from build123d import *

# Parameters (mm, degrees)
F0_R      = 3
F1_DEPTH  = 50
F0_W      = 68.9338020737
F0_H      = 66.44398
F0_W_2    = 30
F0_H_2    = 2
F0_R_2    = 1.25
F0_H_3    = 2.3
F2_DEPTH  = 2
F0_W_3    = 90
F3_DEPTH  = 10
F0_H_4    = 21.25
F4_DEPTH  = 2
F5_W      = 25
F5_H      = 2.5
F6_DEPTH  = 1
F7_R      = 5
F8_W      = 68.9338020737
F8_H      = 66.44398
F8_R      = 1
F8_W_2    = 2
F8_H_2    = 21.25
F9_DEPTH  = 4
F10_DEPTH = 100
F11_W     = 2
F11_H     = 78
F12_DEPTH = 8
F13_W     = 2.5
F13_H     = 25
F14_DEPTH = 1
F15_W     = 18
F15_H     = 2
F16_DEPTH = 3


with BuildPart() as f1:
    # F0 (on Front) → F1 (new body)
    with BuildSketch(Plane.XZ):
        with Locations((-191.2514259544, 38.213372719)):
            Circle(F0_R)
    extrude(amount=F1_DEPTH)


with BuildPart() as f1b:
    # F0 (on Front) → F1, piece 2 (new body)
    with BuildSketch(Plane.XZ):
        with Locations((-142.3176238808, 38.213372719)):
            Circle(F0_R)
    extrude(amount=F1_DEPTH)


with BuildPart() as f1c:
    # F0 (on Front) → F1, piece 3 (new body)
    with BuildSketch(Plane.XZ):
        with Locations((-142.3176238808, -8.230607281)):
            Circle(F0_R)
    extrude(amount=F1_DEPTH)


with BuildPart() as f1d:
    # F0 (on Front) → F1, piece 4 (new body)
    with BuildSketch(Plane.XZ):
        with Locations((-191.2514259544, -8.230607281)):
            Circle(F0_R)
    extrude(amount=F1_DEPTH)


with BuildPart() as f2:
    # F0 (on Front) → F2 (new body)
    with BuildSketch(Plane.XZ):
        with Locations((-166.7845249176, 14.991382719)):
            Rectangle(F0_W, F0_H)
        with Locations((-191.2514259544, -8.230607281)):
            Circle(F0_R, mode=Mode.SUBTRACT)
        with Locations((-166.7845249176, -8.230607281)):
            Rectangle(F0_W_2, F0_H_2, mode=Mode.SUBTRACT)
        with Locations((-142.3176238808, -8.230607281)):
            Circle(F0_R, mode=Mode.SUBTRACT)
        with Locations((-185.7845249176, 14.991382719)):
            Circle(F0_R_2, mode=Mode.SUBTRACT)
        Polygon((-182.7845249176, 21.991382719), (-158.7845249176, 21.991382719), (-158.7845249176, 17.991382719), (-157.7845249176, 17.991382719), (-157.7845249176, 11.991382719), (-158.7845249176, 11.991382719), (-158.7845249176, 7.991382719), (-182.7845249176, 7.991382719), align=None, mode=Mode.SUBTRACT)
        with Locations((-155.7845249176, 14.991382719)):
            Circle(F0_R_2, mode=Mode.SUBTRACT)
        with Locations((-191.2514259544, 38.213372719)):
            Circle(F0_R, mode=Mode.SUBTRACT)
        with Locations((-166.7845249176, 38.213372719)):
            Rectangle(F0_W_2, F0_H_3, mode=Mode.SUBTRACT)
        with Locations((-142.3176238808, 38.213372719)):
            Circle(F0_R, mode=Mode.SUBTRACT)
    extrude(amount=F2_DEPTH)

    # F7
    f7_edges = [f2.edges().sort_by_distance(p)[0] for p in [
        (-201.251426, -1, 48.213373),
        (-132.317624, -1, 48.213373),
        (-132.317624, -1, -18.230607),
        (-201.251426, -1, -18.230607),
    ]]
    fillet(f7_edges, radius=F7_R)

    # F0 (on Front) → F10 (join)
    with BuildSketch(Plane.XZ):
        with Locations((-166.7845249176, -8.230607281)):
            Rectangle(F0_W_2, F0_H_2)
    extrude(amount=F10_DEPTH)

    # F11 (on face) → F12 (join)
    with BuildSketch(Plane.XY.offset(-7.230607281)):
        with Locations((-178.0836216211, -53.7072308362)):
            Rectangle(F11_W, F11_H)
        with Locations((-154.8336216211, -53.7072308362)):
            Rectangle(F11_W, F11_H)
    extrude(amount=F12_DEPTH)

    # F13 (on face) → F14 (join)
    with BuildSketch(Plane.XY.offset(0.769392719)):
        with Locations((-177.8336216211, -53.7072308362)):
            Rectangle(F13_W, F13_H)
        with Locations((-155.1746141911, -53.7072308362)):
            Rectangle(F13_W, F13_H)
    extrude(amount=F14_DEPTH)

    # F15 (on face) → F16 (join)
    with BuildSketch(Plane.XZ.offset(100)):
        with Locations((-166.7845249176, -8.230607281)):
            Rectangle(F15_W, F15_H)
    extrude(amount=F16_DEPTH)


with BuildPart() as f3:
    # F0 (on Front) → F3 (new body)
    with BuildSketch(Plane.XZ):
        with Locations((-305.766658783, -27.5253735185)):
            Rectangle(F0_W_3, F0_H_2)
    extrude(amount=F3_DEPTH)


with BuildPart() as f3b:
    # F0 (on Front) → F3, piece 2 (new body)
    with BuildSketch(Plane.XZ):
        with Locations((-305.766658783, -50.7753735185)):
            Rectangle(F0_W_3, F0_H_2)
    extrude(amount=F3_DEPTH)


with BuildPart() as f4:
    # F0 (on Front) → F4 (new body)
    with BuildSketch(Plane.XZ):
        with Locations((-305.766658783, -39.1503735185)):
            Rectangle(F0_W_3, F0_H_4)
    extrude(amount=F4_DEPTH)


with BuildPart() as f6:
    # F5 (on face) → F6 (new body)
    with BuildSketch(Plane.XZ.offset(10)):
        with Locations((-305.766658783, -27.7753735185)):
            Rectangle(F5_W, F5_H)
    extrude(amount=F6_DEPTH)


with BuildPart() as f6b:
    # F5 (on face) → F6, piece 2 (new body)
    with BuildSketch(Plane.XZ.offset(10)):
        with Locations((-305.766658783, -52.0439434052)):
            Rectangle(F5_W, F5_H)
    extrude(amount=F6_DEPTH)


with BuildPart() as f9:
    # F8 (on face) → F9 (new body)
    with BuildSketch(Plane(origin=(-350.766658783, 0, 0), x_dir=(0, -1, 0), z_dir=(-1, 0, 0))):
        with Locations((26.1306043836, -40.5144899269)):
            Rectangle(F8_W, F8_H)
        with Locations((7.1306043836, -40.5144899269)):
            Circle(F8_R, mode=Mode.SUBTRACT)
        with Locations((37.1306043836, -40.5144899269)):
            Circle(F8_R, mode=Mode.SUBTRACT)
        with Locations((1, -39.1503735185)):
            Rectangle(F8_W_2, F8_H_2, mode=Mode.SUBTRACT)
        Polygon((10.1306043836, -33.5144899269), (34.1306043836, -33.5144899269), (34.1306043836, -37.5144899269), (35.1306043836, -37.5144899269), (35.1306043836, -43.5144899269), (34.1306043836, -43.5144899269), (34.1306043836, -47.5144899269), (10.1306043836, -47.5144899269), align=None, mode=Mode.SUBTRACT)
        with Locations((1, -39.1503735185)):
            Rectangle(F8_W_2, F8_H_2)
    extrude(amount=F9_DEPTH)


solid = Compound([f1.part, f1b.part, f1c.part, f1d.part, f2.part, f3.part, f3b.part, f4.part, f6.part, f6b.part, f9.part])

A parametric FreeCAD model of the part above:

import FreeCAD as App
import Part
import Sketcher

V = App.Vector
Q = App.Units.Quantity


def edges_at(feature, points):
    """Names of the edges that pass closest to the given points."""
    edges = feature.Shape.Edges
    near = lambda p: min(range(len(edges)), key=lambda i: edges[i].distToShape(Part.Vertex(*p))[0])
    return sorted({f"Edge{near(p) + 1}" for p in points})

doc = App.newDocument("Part")
params = doc.addObject("Spreadsheet::Sheet", "Params")
for row, (alias, value) in enumerate([
    ("sketch1_diameter", "6 mm"),
    ("pad1_length", "50 mm"),
    ("sketch2_diameter", "6 mm"),
    ("pad2_length", "50 mm"),
    ("sketch3_diameter", "6 mm"),
    ("pad3_length", "50 mm"),
    ("sketch4_diameter", "6 mm"),
    ("pad4_length", "50 mm"),
    ("sketch5_diameter", "6 mm"),
    ("sketch5_diameter2", "2.5 mm"),
    ("sketch5_width", "30 mm"),
    ("sketch5_width2", "24 mm"),
    ("sketch5_width3", "1 mm"),
    ("pad5_length", "2 mm"),
    ("fillet_radius", "5 mm"),
    ("sketch6_width", "30 mm"),
    ("sketch6_height", "2 mm"),
    ("pad6_length", "100 mm"),
    ("sketch7_width", "2 mm"),
    ("sketch7_height", "78 mm"),
    ("pad7_length", "8 mm"),
    ("sketch8_height", "25 mm"),
    ("sketch8_width", "2.5 mm"),
    ("pad8_length", "1 mm"),
    ("sketch9_width", "18 mm"),
    ("sketch9_height", "2 mm"),
    ("pad9_length", "3 mm"),
    ("sketch10_width", "90 mm"),
    ("sketch10_height", "2 mm"),
    ("pad10_length", "10 mm"),
    ("sketch11_width", "90 mm"),
    ("sketch11_height", "2 mm"),
    ("pad11_length", "10 mm"),
    ("sketch12_width", "90 mm"),
    ("sketch12_height", "21.25 mm"),
    ("pad12_length", "2 mm"),
    ("sketch13_width", "25 mm"),
    ("sketch13_height", "2.5 mm"),
    ("pad13_length", "1 mm"),
    ("sketch14_width", "25 mm"),
    ("sketch14_height", "2.5 mm"),
    ("pad14_length", "1 mm"),
    ("sketch15_diameter", "2 mm"),
    ("sketch15_width", "24 mm"),
    ("sketch15_width2", "1 mm"),
    ("sketch15_height", "14 mm"),
    ("sketch15_height2", "4 mm"),
    ("pad15_length", "4 mm"),
], start=1):
    params.set(f"A{row}", alias)
    params.set(f"B{row}", "=" + value)
    params.setAlias(f"B{row}", alias)

body = doc.addObject("PartDesign::Body", "Body")

sketch1 = body.newObject("Sketcher::SketchObject", "Sketch")
sketch1.AttachmentSupport = (doc.getObject("XZ_Plane"), [""])
sketch1.MapMode = "FlatFace"
sketch1.addGeometry(Part.Circle(V(-191.3, 38.2, 0), V(0, 0, 1), 3), False)
sketch1.addConstraint([
    Sketcher.Constraint("Diameter", 0, Q("6 mm")),
    Sketcher.Constraint("DistanceX", 0, 3, -1, 1, Q("191.251426 mm")),
    Sketcher.Constraint("DistanceY", -1, 1, 0, 3, Q("38.213373 mm")),
])
sketch1.setExpression("Constraints[0]", "Params.sketch1_diameter")
pad1 = body.newObject("PartDesign::Pad", "Pad")
pad1.Profile = sketch1
pad1.setExpression("Length", "Params.pad1_length")
body2 = doc.addObject("PartDesign::Body", "Body001")

sketch2 = body2.newObject("Sketcher::SketchObject", "Sketch001")
sketch2.AttachmentSupport = (doc.getObject("XZ_Plane001"), [""])
sketch2.MapMode = "FlatFace"
sketch2.addGeometry(Part.Circle(V(-142.3, 38.2, 0), V(0, 0, 1), 3), False)
sketch2.addConstraint([
    Sketcher.Constraint("Diameter", 0, Q("6 mm")),
    Sketcher.Constraint("DistanceX", 0, 3, -1, 1, Q("142.317624 mm")),
    Sketcher.Constraint("DistanceY", -1, 1, 0, 3, Q("38.213373 mm")),
])
sketch2.setExpression("Constraints[0]", "Params.sketch2_diameter")
pad2 = body2.newObject("PartDesign::Pad", "Pad001")
pad2.Profile = sketch2
pad2.setExpression("Length", "Params.pad2_length")
body3 = doc.addObject("PartDesign::Body", "Body002")

sketch3 = body3.newObject("Sketcher::SketchObject", "Sketch002")
sketch3.AttachmentSupport = (doc.getObject("XZ_Plane002"), [""])
sketch3.MapMode = "FlatFace"
sketch3.addGeometry(Part.Circle(V(-142.3, -8.2, 0), V(0, 0, 1), 3), False)
sketch3.addConstraint([
    Sketcher.Constraint("Diameter", 0, Q("6 mm")),
    Sketcher.Constraint("DistanceX", 0, 3, -1, 1, Q("142.317624 mm")),
    Sketcher.Constraint("DistanceY", 0, 3, -1, 1, Q("8.230607 mm")),
])
sketch3.setExpression("Constraints[0]", "Params.sketch3_diameter")
pad3 = body3.newObject("PartDesign::Pad", "Pad002")
pad3.Profile = sketch3
pad3.setExpression("Length", "Params.pad3_length")
body4 = doc.addObject("PartDesign::Body", "Body003")

sketch4 = body4.newObject("Sketcher::SketchObject", "Sketch003")
sketch4.AttachmentSupport = (doc.getObject("XZ_Plane003"), [""])
sketch4.MapMode = "FlatFace"
sketch4.addGeometry(Part.Circle(V(-191.3, -8.2, 0), V(0, 0, 1), 3), False)
sketch4.addConstraint([
    Sketcher.Constraint("Diameter", 0, Q("6 mm")),
    Sketcher.Constraint("DistanceX", 0, 3, -1, 1, Q("191.251426 mm")),
    Sketcher.Constraint("DistanceY", 0, 3, -1, 1, Q("8.230607 mm")),
])
sketch4.setExpression("Constraints[0]", "Params.sketch4_diameter")
pad4 = body4.newObject("PartDesign::Pad", "Pad003")
pad4.Profile = sketch4
pad4.setExpression("Length", "Params.pad4_length")
body5 = doc.addObject("PartDesign::Body", "Body004")

sketch5 = body5.newObject("Sketcher::SketchObject", "Sketch004")
sketch5.AttachmentSupport = (doc.getObject("XZ_Plane004"), [""])
sketch5.MapMode = "FlatFace"
sketch5.addGeometry([
    Part.LineSegment(V(-201.3, 48.2, 0), V(-201.3, -18.2, 0)),
    Part.LineSegment(V(-201.3, -18.2, 0), V(-132.3, -18.2, 0)),
    Part.LineSegment(V(-132.3, -18.2, 0), V(-132.3, 48.2, 0)),
    Part.LineSegment(V(-132.3, 48.2, 0), V(-201.3, 48.2, 0)),
    Part.Circle(V(-191.3, -8.2, 0), V(0, 0, 1), 3),
    Part.LineSegment(V(-151.8, -9.2, 0), V(-181.8, -9.2, 0)),
    Part.LineSegment(V(-181.8, -9.2, 0), V(-181.8, -7.2, 0)),
    Part.LineSegment(V(-181.8, -7.2, 0), V(-151.8, -7.2, 0)),
    Part.LineSegment(V(-151.8, -7.2, 0), V(-151.8, -9.2, 0)),
    Part.Circle(V(-142.3, -8.2, 0), V(0, 0, 1), 3),
    Part.Circle(V(-185.8, 15, 0), V(0, 0, 1), 1.2),
    Part.LineSegment(V(-182.8, 8, 0), V(-182.8, 22, 0)),
    Part.LineSegment(V(-182.8, 22, 0), V(-158.8, 22, 0)),
    Part.LineSegment(V(-158.8, 22, 0), V(-158.8, 18, 0)),
    Part.LineSegment(V(-158.8, 18, 0), V(-157.8, 18, 0)),
    Part.LineSegment(V(-157.8, 18, 0), V(-157.8, 12, 0)),
    Part.LineSegment(V(-157.8, 12, 0), V(-158.8, 12, 0)),
    Part.LineSegment(V(-158.8, 12, 0), V(-158.8, 8, 0)),
    Part.LineSegment(V(-158.8, 8, 0), V(-182.8, 8, 0)),
    Part.Circle(V(-191.3, 38.2, 0), V(0, 0, 1), 3),
    Part.LineSegment(V(-151.8, 37.1, 0), V(-181.8, 37.1, 0)),
    Part.LineSegment(V(-181.8, 37.1, 0), V(-181.8, 39.4, 0)),
    Part.LineSegment(V(-181.8, 39.4, 0), V(-151.8, 39.4, 0)),
    Part.LineSegment(V(-151.8, 39.4, 0), V(-151.8, 37.1, 0)),
    Part.Circle(V(-155.8, 15, 0), V(0, 0, 1), 1.2),
    Part.Circle(V(-142.3, 38.2, 0), V(0, 0, 1), 3),
], False)
sketch5.addConstraint([
    Sketcher.Constraint("Coincident", 0, 2, 1, 1),
    Sketcher.Constraint("Coincident", 1, 2, 2, 1),
    Sketcher.Constraint("Coincident", 2, 2, 3, 1),
    Sketcher.Constraint("Coincident", 3, 2, 0, 1),
    Sketcher.Constraint("Coincident", 5, 2, 6, 1),
    Sketcher.Constraint("Coincident", 6, 2, 7, 1),
    Sketcher.Constraint("Coincident", 7, 2, 8, 1),
    Sketcher.Constraint("Coincident", 8, 2, 5, 1),
    Sketcher.Constraint("Coincident", 11, 2, 12, 1),
    Sketcher.Constraint("Coincident", 12, 2, 13, 1),
    Sketcher.Constraint("Coincident", 13, 2, 14, 1),
    Sketcher.Constraint("Coincident", 14, 2, 15, 1),
    Sketcher.Constraint("Coincident", 15, 2, 16, 1),
    Sketcher.Constraint("Coincident", 16, 2, 17, 1),
    Sketcher.Constraint("Coincident", 17, 2, 18, 1),
    Sketcher.Constraint("Coincident", 18, 2, 11, 1),
    Sketcher.Constraint("Coincident", 20, 2, 21, 1),
    Sketcher.Constraint("Coincident", 21, 2, 22, 1),
    Sketcher.Constraint("Coincident", 22, 2, 23, 1),
    Sketcher.Constraint("Coincident", 23, 2, 20, 1),
    Sketcher.Constraint("Vertical", 0),
    Sketcher.Constraint("Horizontal", 1),
    Sketcher.Constraint("Vertical", 2),
    Sketcher.Constraint("Horizontal", 3),
    Sketcher.Constraint("Horizontal", 5),
    Sketcher.Constraint("Vertical", 6),
    Sketcher.Constraint("Horizontal", 7),
    Sketcher.Constraint("Vertical", 8),
    Sketcher.Constraint("Vertical", 11),
    Sketcher.Constraint("Horizontal", 12),
    Sketcher.Constraint("Vertical", 13),
    Sketcher.Constraint("Horizontal", 14),
    Sketcher.Constraint("Vertical", 15),
    Sketcher.Constraint("Horizontal", 16),
    Sketcher.Constraint("Vertical", 17),
    Sketcher.Constraint("Horizontal", 18),
    Sketcher.Constraint("Horizontal", 20),
    Sketcher.Constraint("Vertical", 21),
    Sketcher.Constraint("Horizontal", 22),
    Sketcher.Constraint("Vertical", 23),
    Sketcher.Constraint("Equal", 4, 9),
    Sketcher.Constraint("Equal", 9, 19),
    Sketcher.Constraint("Equal", 10, 24),
    Sketcher.Constraint("Equal", 19, 25),
    Sketcher.Constraint("Horizontal", 4, 3, 9, 3),
    Sketcher.Constraint("Horizontal", 10, 3, 24, 3),
    Sketcher.Constraint("Horizontal", 19, 3, 25, 3),
    Sketcher.Constraint("Vertical", 4, 3, 19, 3),
    Sketcher.Constraint("Vertical", 9, 3, 25, 3),
    Sketcher.Constraint("Vertical", 13, 2, 16, 2),
    Sketcher.Constraint("Vertical", 6, 2, 20, 2),
    Sketcher.Constraint("Vertical", 8, 2, 22, 2),
    Sketcher.Constraint("Equal", 13, 17),
    Sketcher.Constraint("Diameter", 4, Q("6 mm")),
    Sketcher.Constraint("Diameter", 10, Q("2.5 mm")),
    Sketcher.Constraint("DistanceX", 5, 2, 5, 1, Q("30 mm")),
    Sketcher.Constraint("DistanceX", 12, 1, 12, 2, Q("24 mm")),
    Sketcher.Constraint("DistanceX", 14, 1, 14, 2, Q("1 mm")),
    Sketcher.Constraint("DistanceY", 6, 1, 6, 2, Q("2 mm")),
    Sketcher.Constraint("DistanceY", 11, 1, 11, 2, Q("14 mm")),
    Sketcher.Constraint("DistanceY", 13, 2, 13, 1, Q("4 mm")),
    Sketcher.Constraint("DistanceY", 21, 1, 21, 2, Q("2.3 mm")),
    Sketcher.Constraint("DistanceX", 10, 3, 24, 3, Q("30 mm")),
    Sketcher.Constraint("DistanceX", 0, 2, 4, 3, Q("10 mm")),
    Sketcher.Constraint("DistanceY", 0, 2, 4, 3, Q("10 mm")),
    Sketcher.Constraint("DistanceX", 9, 3, 1, 2, Q("10 mm")),
    Sketcher.Constraint("DistanceY", 25, 3, 2, 2, Q("10 mm")),
    Sketcher.Constraint("DistanceY", 5, 2, 4, 3, Q("1 mm")),
    Sketcher.Constraint("DistanceX", 10, 3, 5, 2, Q("4 mm")),
    Sketcher.Constraint("DistanceX", 10, 3, 11, 2, Q("3 mm")),
    Sketcher.Constraint("DistanceY", 10, 3, 11, 2, Q("7 mm")),
    Sketcher.Constraint("DistanceY", 20, 2, 19, 3, Q("1.15 mm")),
    Sketcher.Constraint("DistanceY", 0, 2, 0, 1, Q("66.44398 mm")),
    Sketcher.Constraint("DistanceX", 4, 3, 10, 3, Q("5.466901 mm")),
    Sketcher.Constraint("DistanceX", 10, 3, 9, 3, Q("43.466901 mm")),
    Sketcher.Constraint("DistanceY", 4, 3, 10, 3, Q("23.22199 mm")),
    Sketcher.Constraint("DistanceX", 4, 3, -1, 1, Q("191.251426 mm")),
    Sketcher.Constraint("DistanceY", 4, 3, -1, 1, Q("8.230607 mm")),
])
sketch5.setExpression("Constraints[53]", "Params.sketch5_diameter")
sketch5.setExpression("Constraints[54]", "Params.sketch5_diameter2")
sketch5.setExpression("Constraints[55]", "Params.sketch5_width")
sketch5.setExpression("Constraints[56]", "Params.sketch5_width2")
sketch5.setExpression("Constraints[57]", "Params.sketch5_width3")
pad5 = body5.newObject("PartDesign::Pad", "Pad004")
pad5.Profile = sketch5
pad5.setExpression("Length", "Params.pad5_length")
doc.recompute()

fillet = body5.newObject("PartDesign::Fillet", "Fillet")
fillet.Base = (pad5, edges_at(pad5, [
    (-201.251, -1, 48.213),
    (-132.318, -1, 48.213),
    (-132.318, -1, -18.231),
    (-201.251, -1, -18.231),
]))
fillet.setExpression("Radius", "Params.fillet_radius")

sketch6 = body5.newObject("Sketcher::SketchObject", "Sketch005")
sketch6.AttachmentSupport = (doc.getObject("XZ_Plane004"), [""])
sketch6.MapMode = "FlatFace"
sketch6.addGeometry([
    Part.LineSegment(V(-181.8, -7.2, 0), V(-181.8, -9.2, 0)),
    Part.LineSegment(V(-181.8, -9.2, 0), V(-151.8, -9.2, 0)),
    Part.LineSegment(V(-151.8, -9.2, 0), V(-151.8, -7.2, 0)),
    Part.LineSegment(V(-151.8, -7.2, 0), V(-181.8, -7.2, 0)),
], False)
sketch6.addConstraint([
    Sketcher.Constraint("Coincident", 0, 2, 1, 1),
    Sketcher.Constraint("Coincident", 1, 2, 2, 1),
    Sketcher.Constraint("Coincident", 2, 2, 3, 1),
    Sketcher.Constraint("Coincident", 3, 2, 0, 1),
    Sketcher.Constraint("Vertical", 0),
    Sketcher.Constraint("Horizontal", 1),
    Sketcher.Constraint("Vertical", 2),
    Sketcher.Constraint("Horizontal", 3),
    Sketcher.Constraint("DistanceX", 1, 1, 1, 2, Q("30 mm")),
    Sketcher.Constraint("DistanceY", 0, 2, 0, 1, Q("2 mm")),
    Sketcher.Constraint("DistanceX", 0, 2, -1, 1, Q("181.784525 mm")),
    Sketcher.Constraint("DistanceY", 0, 2, -1, 1, Q("9.230607 mm")),
])
sketch6.setExpression("Constraints[8]", "Params.sketch6_width")
sketch6.setExpression("Constraints[9]", "Params.sketch6_height")
pad6 = body5.newObject("PartDesign::Pad", "Pad005")
pad6.Profile = sketch6
pad6.setExpression("Length", "Params.pad6_length")

sketch7 = body5.newObject("Sketcher::SketchObject", "Sketch006")
sketch7.AttachmentSupport = (doc.getObject("XY_Plane004"), [""])
sketch7.MapMode = "FlatFace"
sketch7.AttachmentOffset = App.Placement(V(0, 0, -7.230607), App.Rotation())
sketch7.addGeometry([
    Part.LineSegment(V(-179.1, -14.7, 0), V(-179.1, -92.7, 0)),
    Part.LineSegment(V(-179.1, -92.7, 0), V(-177.1, -92.7, 0)),
    Part.LineSegment(V(-177.1, -92.7, 0), V(-177.1, -14.7, 0)),
    Part.LineSegment(V(-177.1, -14.7, 0), V(-179.1, -14.7, 0)),
    Part.LineSegment(V(-155.8, -14.7, 0), V(-155.8, -92.7, 0)),
    Part.LineSegment(V(-155.8, -92.7, 0), V(-153.8, -92.7, 0)),
    Part.LineSegment(V(-153.8, -92.7, 0), V(-153.8, -14.7, 0)),
    Part.LineSegment(V(-153.8, -14.7, 0), V(-155.8, -14.7, 0)),
], False)
sketch7.addConstraint([
    Sketcher.Constraint("Coincident", 0, 2, 1, 1),
    Sketcher.Constraint("Coincident", 1, 2, 2, 1),
    Sketcher.Constraint("Coincident", 2, 2, 3, 1),
    Sketcher.Constraint("Coincident", 3, 2, 0, 1),
    Sketcher.Constraint("Coincident", 4, 2, 5, 1),
    Sketcher.Constraint("Coincident", 5, 2, 6, 1),
    Sketcher.Constraint("Coincident", 6, 2, 7, 1),
    Sketcher.Constraint("Coincident", 7, 2, 4, 1),
    Sketcher.Constraint("Vertical", 0),
    Sketcher.Constraint("Horizontal", 1),
    Sketcher.Constraint("Vertical", 2),
    Sketcher.Constraint("Horizontal", 3),
    Sketcher.Constraint("Vertical", 4),
    Sketcher.Constraint("Horizontal", 5),
    Sketcher.Constraint("Vertical", 6),
    Sketcher.Constraint("Horizontal", 7),
    Sketcher.Constraint("Horizontal", 1, 2, 4, 2),
    Sketcher.Constraint("Horizontal", 3, 2, 6, 2),
    Sketcher.Constraint("Equal", 3, 5),
    Sketcher.Constraint("DistanceX", 1, 1, 1, 2, Q("2 mm")),
    Sketcher.Constraint("DistanceY", 0, 2, 0, 1, Q("78 mm")),
    Sketcher.Constraint("DistanceX", 1, 2, 4, 2, Q("21.25 mm")),
    Sketcher.Constraint("DistanceX", 0, 2, -1, 1, Q("179.083622 mm")),
    Sketcher.Constraint("DistanceY", 0, 2, -1, 1, Q("92.707231 mm")),
])
sketch7.setExpression("Constraints[19]", "Params.sketch7_width")
sketch7.setExpression("Constraints[20]", "Params.sketch7_height")
pad7 = body5.newObject("PartDesign::Pad", "Pad006")
pad7.Profile = sketch7
pad7.setExpression("Length", "Params.pad7_length")

sketch8 = body5.newObject("Sketcher::SketchObject", "Sketch007")
sketch8.AttachmentSupport = (doc.getObject("XY_Plane004"), [""])
sketch8.MapMode = "FlatFace"
sketch8.AttachmentOffset = App.Placement(V(0, 0, 0.769393), App.Rotation())
sketch8.addGeometry([
    Part.LineSegment(V(-179.1, -41.2, 0), V(-179.1, -66.2, 0)),
    Part.LineSegment(V(-179.1, -66.2, 0), V(-176.6, -66.2, 0)),
    Part.LineSegment(V(-176.6, -66.2, 0), V(-176.6, -41.2, 0)),
    Part.LineSegment(V(-176.6, -41.2, 0), V(-179.1, -41.2, 0)),
    Part.LineSegment(V(-156.4, -41.2, 0), V(-156.4, -66.2, 0)),
    Part.LineSegment(V(-156.4, -66.2, 0), V(-153.9, -66.2, 0)),
    Part.LineSegment(V(-153.9, -66.2, 0), V(-153.9, -41.2, 0)),
    Part.LineSegment(V(-153.9, -41.2, 0), V(-156.4, -41.2, 0)),
], False)
sketch8.addConstraint([
    Sketcher.Constraint("Coincident", 0, 2, 1, 1),
    Sketcher.Constraint("Coincident", 1, 2, 2, 1),
    Sketcher.Constraint("Coincident", 2, 2, 3, 1),
    Sketcher.Constraint("Coincident", 3, 2, 0, 1),
    Sketcher.Constraint("Coincident", 4, 2, 5, 1),
    Sketcher.Constraint("Coincident", 5, 2, 6, 1),
    Sketcher.Constraint("Coincident", 6, 2, 7, 1),
    Sketcher.Constraint("Coincident", 7, 2, 4, 1),
    Sketcher.Constraint("Vertical", 0),
    Sketcher.Constraint("Horizontal", 1),
    Sketcher.Constraint("Vertical", 2),
    Sketcher.Constraint("Horizontal", 3),
    Sketcher.Constraint("Vertical", 4),
    Sketcher.Constraint("Horizontal", 5),
    Sketcher.Constraint("Vertical", 6),
    Sketcher.Constraint("Horizontal", 7),
    Sketcher.Constraint("Horizontal", 1, 2, 4, 2),
    Sketcher.Constraint("Horizontal", 3, 2, 6, 2),
    Sketcher.Constraint("Equal", 3, 5),
    Sketcher.Constraint("DistanceY", 0, 2, 0, 1, Q("25 mm")),
    Sketcher.Constraint("DistanceX", 1, 1, 1, 2, Q("2.5 mm")),
    Sketcher.Constraint("DistanceX", 0, 2, -1, 1, Q("179.083622 mm")),
    Sketcher.Constraint("DistanceY", 0, 2, -1, 1, Q("66.207231 mm")),
    Sketcher.Constraint("DistanceX", 4, 2, -1, 1, Q("156.424614 mm")),
])
sketch8.setExpression("Constraints[19]", "Params.sketch8_height")
sketch8.setExpression("Constraints[20]", "Params.sketch8_width")
pad8 = body5.newObject("PartDesign::Pad", "Pad007")
pad8.Profile = sketch8
pad8.setExpression("Length", "Params.pad8_length")

sketch9 = body5.newObject("Sketcher::SketchObject", "Sketch008")
sketch9.AttachmentSupport = (doc.getObject("XZ_Plane004"), [""])
sketch9.MapMode = "FlatFace"
sketch9.AttachmentOffset = App.Placement(V(0, 0, 100), App.Rotation())
sketch9.addGeometry([
    Part.LineSegment(V(-175.8, -7.2, 0), V(-175.8, -9.2, 0)),
    Part.LineSegment(V(-175.8, -9.2, 0), V(-157.8, -9.2, 0)),
    Part.LineSegment(V(-157.8, -9.2, 0), V(-157.8, -7.2, 0)),
    Part.LineSegment(V(-157.8, -7.2, 0), V(-175.8, -7.2, 0)),
], False)
sketch9.addConstraint([
    Sketcher.Constraint("Coincident", 0, 2, 1, 1),
    Sketcher.Constraint("Coincident", 1, 2, 2, 1),
    Sketcher.Constraint("Coincident", 2, 2, 3, 1),
    Sketcher.Constraint("Coincident", 3, 2, 0, 1),
    Sketcher.Constraint("Vertical", 0),
    Sketcher.Constraint("Horizontal", 1),
    Sketcher.Constraint("Vertical", 2),
    Sketcher.Constraint("Horizontal", 3),
    Sketcher.Constraint("DistanceX", 1, 1, 1, 2, Q("18 mm")),
    Sketcher.Constraint("DistanceY", 0, 2, 0, 1, Q("2 mm")),
    Sketcher.Constraint("DistanceX", 0, 2, -1, 1, Q("175.784525 mm")),
    Sketcher.Constraint("DistanceY", 0, 2, -1, 1, Q("9.230607 mm")),
])
sketch9.setExpression("Constraints[8]", "Params.sketch9_width")
sketch9.setExpression("Constraints[9]", "Params.sketch9_height")
pad9 = body5.newObject("PartDesign::Pad", "Pad008")
pad9.Profile = sketch9
pad9.setExpression("Length", "Params.pad9_length")
body6 = doc.addObject("PartDesign::Body", "Body005")

sketch10 = body6.newObject("Sketcher::SketchObject", "Sketch009")
sketch10.AttachmentSupport = (doc.getObject("XZ_Plane005"), [""])
sketch10.MapMode = "FlatFace"
sketch10.addGeometry([
    Part.LineSegment(V(-350.8, -26.5, 0), V(-350.8, -28.5, 0)),
    Part.LineSegment(V(-350.8, -28.5, 0), V(-260.8, -28.5, 0)),
    Part.LineSegment(V(-260.8, -28.5, 0), V(-260.8, -26.5, 0)),
    Part.LineSegment(V(-260.8, -26.5, 0), V(-350.8, -26.5, 0)),
], False)
sketch10.addConstraint([
    Sketcher.Constraint("Coincident", 0, 2, 1, 1),
    Sketcher.Constraint("Coincident", 1, 2, 2, 1),
    Sketcher.Constraint("Coincident", 2, 2, 3, 1),
    Sketcher.Constraint("Coincident", 3, 2, 0, 1),
    Sketcher.Constraint("Vertical", 0),
    Sketcher.Constraint("Horizontal", 1),
    Sketcher.Constraint("Vertical", 2),
    Sketcher.Constraint("Horizontal", 3),
    Sketcher.Constraint("DistanceX", 1, 1, 1, 2, Q("90 mm")),
    Sketcher.Constraint("DistanceY", 0, 2, 0, 1, Q("2 mm")),
    Sketcher.Constraint("DistanceX", 0, 2, -1, 1, Q("350.766659 mm")),
    Sketcher.Constraint("DistanceY", 0, 2, -1, 1, Q("28.525374 mm")),
])
sketch10.setExpression("Constraints[8]", "Params.sketch10_width")
sketch10.setExpression("Constraints[9]", "Params.sketch10_height")
pad10 = body6.newObject("PartDesign::Pad", "Pad009")
pad10.Profile = sketch10
pad10.setExpression("Length", "Params.pad10_length")
body7 = doc.addObject("PartDesign::Body", "Body006")

sketch11 = body7.newObject("Sketcher::SketchObject", "Sketch010")
sketch11.AttachmentSupport = (doc.getObject("XZ_Plane006"), [""])
sketch11.MapMode = "FlatFace"
sketch11.addGeometry([
    Part.LineSegment(V(-350.8, -49.8, 0), V(-350.8, -51.8, 0)),
    Part.LineSegment(V(-350.8, -51.8, 0), V(-260.8, -51.8, 0)),
    Part.LineSegment(V(-260.8, -51.8, 0), V(-260.8, -49.8, 0)),
    Part.LineSegment(V(-260.8, -49.8, 0), V(-350.8, -49.8, 0)),
], False)
sketch11.addConstraint([
    Sketcher.Constraint("Coincident", 0, 2, 1, 1),
    Sketcher.Constraint("Coincident", 1, 2, 2, 1),
    Sketcher.Constraint("Coincident", 2, 2, 3, 1),
    Sketcher.Constraint("Coincident", 3, 2, 0, 1),
    Sketcher.Constraint("Vertical", 0),
    Sketcher.Constraint("Horizontal", 1),
    Sketcher.Constraint("Vertical", 2),
    Sketcher.Constraint("Horizontal", 3),
    Sketcher.Constraint("DistanceX", 1, 1, 1, 2, Q("90 mm")),
    Sketcher.Constraint("DistanceY", 0, 2, 0, 1, Q("2 mm")),
    Sketcher.Constraint("DistanceX", 0, 2, -1, 1, Q("350.766659 mm")),
    Sketcher.Constraint("DistanceY", 0, 2, -1, 1, Q("51.775374 mm")),
])
sketch11.setExpression("Constraints[8]", "Params.sketch11_width")
sketch11.setExpression("Constraints[9]", "Params.sketch11_height")
pad11 = body7.newObject("PartDesign::Pad", "Pad010")
pad11.Profile = sketch11
pad11.setExpression("Length", "Params.pad11_length")
body8 = doc.addObject("PartDesign::Body", "Body007")

sketch12 = body8.newObject("Sketcher::SketchObject", "Sketch011")
sketch12.AttachmentSupport = (doc.getObject("XZ_Plane007"), [""])
sketch12.MapMode = "FlatFace"
sketch12.addGeometry([
    Part.LineSegment(V(-351, -29, 0), V(-351, -50, 0)),
    Part.LineSegment(V(-351, -50, 0), V(-261, -50, 0)),
    Part.LineSegment(V(-261, -50, 0), V(-261, -29, 0)),
    Part.LineSegment(V(-261, -29, 0), V(-351, -29, 0)),
], False)
sketch12.addConstraint([
    Sketcher.Constraint("Coincident", 0, 2, 1, 1),
    Sketcher.Constraint("Coincident", 1, 2, 2, 1),
    Sketcher.Constraint("Coincident", 2, 2, 3, 1),
    Sketcher.Constraint("Coincident", 3, 2, 0, 1),
    Sketcher.Constraint("Vertical", 0),
    Sketcher.Constraint("Horizontal", 1),
    Sketcher.Constraint("Vertical", 2),
    Sketcher.Constraint("Horizontal", 3),
    Sketcher.Constraint("DistanceX", 1, 1, 1, 2, Q("90 mm")),
    Sketcher.Constraint("DistanceY", 0, 2, 0, 1, Q("21.25 mm")),
    Sketcher.Constraint("DistanceX", 0, 2, -1, 1, Q("350.766659 mm")),
    Sketcher.Constraint("DistanceY", 0, 2, -1, 1, Q("49.775374 mm")),
])
sketch12.setExpression("Constraints[8]", "Params.sketch12_width")
sketch12.setExpression("Constraints[9]", "Params.sketch12_height")
pad12 = body8.newObject("PartDesign::Pad", "Pad011")
pad12.Profile = sketch12
pad12.setExpression("Length", "Params.pad12_length")
body9 = doc.addObject("PartDesign::Body", "Body008")

sketch13 = body9.newObject("Sketcher::SketchObject", "Sketch012")
sketch13.AttachmentSupport = (doc.getObject("XZ_Plane008"), [""])
sketch13.MapMode = "FlatFace"
sketch13.AttachmentOffset = App.Placement(V(0, 0, 10), App.Rotation())
sketch13.addGeometry([
    Part.LineSegment(V(-318.3, -26.5, 0), V(-318.3, -29, 0)),
    Part.LineSegment(V(-318.3, -29, 0), V(-293.3, -29, 0)),
    Part.LineSegment(V(-293.3, -29, 0), V(-293.3, -26.5, 0)),
    Part.LineSegment(V(-293.3, -26.5, 0), V(-318.3, -26.5, 0)),
], False)
sketch13.addConstraint([
    Sketcher.Constraint("Coincident", 0, 2, 1, 1),
    Sketcher.Constraint("Coincident", 1, 2, 2, 1),
    Sketcher.Constraint("Coincident", 2, 2, 3, 1),
    Sketcher.Constraint("Coincident", 3, 2, 0, 1),
    Sketcher.Constraint("Vertical", 0),
    Sketcher.Constraint("Horizontal", 1),
    Sketcher.Constraint("Vertical", 2),
    Sketcher.Constraint("Horizontal", 3),
    Sketcher.Constraint("DistanceX", 1, 1, 1, 2, Q("25 mm")),
    Sketcher.Constraint("DistanceY", 0, 2, 0, 1, Q("2.5 mm")),
    Sketcher.Constraint("DistanceX", 0, 2, -1, 1, Q("318.266659 mm")),
    Sketcher.Constraint("DistanceY", 0, 2, -1, 1, Q("29.025374 mm")),
])
sketch13.setExpression("Constraints[8]", "Params.sketch13_width")
sketch13.setExpression("Constraints[9]", "Params.sketch13_height")
pad13 = body9.newObject("PartDesign::Pad", "Pad012")
pad13.Profile = sketch13
pad13.setExpression("Length", "Params.pad13_length")
body10 = doc.addObject("PartDesign::Body", "Body009")

sketch14 = body10.newObject("Sketcher::SketchObject", "Sketch013")
sketch14.AttachmentSupport = (doc.getObject("XZ_Plane009"), [""])
sketch14.MapMode = "FlatFace"
sketch14.AttachmentOffset = App.Placement(V(0, 0, 10), App.Rotation())
sketch14.addGeometry([
    Part.LineSegment(V(-318.3, -50.8, 0), V(-318.3, -53.3, 0)),
    Part.LineSegment(V(-318.3, -53.3, 0), V(-293.3, -53.3, 0)),
    Part.LineSegment(V(-293.3, -53.3, 0), V(-293.3, -50.8, 0)),
    Part.LineSegment(V(-293.3, -50.8, 0), V(-318.3, -50.8, 0)),
], False)
sketch14.addConstraint([
    Sketcher.Constraint("Coincident", 0, 2, 1, 1),
    Sketcher.Constraint("Coincident", 1, 2, 2, 1),
    Sketcher.Constraint("Coincident", 2, 2, 3, 1),
    Sketcher.Constraint("Coincident", 3, 2, 0, 1),
    Sketcher.Constraint("Vertical", 0),
    Sketcher.Constraint("Horizontal", 1),
    Sketcher.Constraint("Vertical", 2),
    Sketcher.Constraint("Horizontal", 3),
    Sketcher.Constraint("DistanceX", 1, 1, 1, 2, Q("25 mm")),
    Sketcher.Constraint("DistanceY", 0, 2, 0, 1, Q("2.5 mm")),
    Sketcher.Constraint("DistanceX", 0, 2, -1, 1, Q("318.266659 mm")),
    Sketcher.Constraint("DistanceY", 0, 2, -1, 1, Q("53.293943 mm")),
])
sketch14.setExpression("Constraints[8]", "Params.sketch14_width")
sketch14.setExpression("Constraints[9]", "Params.sketch14_height")
pad14 = body10.newObject("PartDesign::Pad", "Pad013")
pad14.Profile = sketch14
pad14.setExpression("Length", "Params.pad14_length")
body11 = doc.addObject("PartDesign::Body", "Body010")

sketch15 = body11.newObject("Sketcher::SketchObject", "Sketch014")
sketch15.AttachmentSupport = (doc.getObject("YZ_Plane010"), [""])
sketch15.MapMode = "FlatFace"
sketch15.AttachmentOffset = App.Placement(V(0, 0, -350.766659), App.Rotation())
sketch15.addGeometry([
    Part.LineSegment(V(8.3, -7.3, 0), V(8.3, -73.7, 0)),
    Part.LineSegment(V(8.3, -73.7, 0), V(-60.6, -73.7, 0)),
    Part.LineSegment(V(-60.6, -73.7, 0), V(-60.6, -7.3, 0)),
    Part.LineSegment(V(-60.6, -7.3, 0), V(8.3, -7.3, 0)),
    Part.Circle(V(-7.1, -40.5, 0), V(0, 0, 1), 1),
    Part.LineSegment(V(-10.1, -47.5, 0), V(-10.1, -33.5, 0)),
    Part.LineSegment(V(-10.1, -33.5, 0), V(-34.1, -33.5, 0)),
    Part.LineSegment(V(-34.1, -33.5, 0), V(-34.1, -37.5, 0)),
    Part.LineSegment(V(-34.1, -37.5, 0), V(-35.1, -37.5, 0)),
    Part.LineSegment(V(-35.1, -37.5, 0), V(-35.1, -43.5, 0)),
    Part.LineSegment(V(-35.1, -43.5, 0), V(-34.1, -43.5, 0)),
    Part.LineSegment(V(-34.1, -43.5, 0), V(-34.1, -47.5, 0)),
    Part.LineSegment(V(-34.1, -47.5, 0), V(-10.1, -47.5, 0)),
    Part.Circle(V(-37.1, -40.5, 0), V(0, 0, 1), 1),
], False)
sketch15.addConstraint([
    Sketcher.Constraint("Coincident", 0, 2, 1, 1),
    Sketcher.Constraint("Coincident", 1, 2, 2, 1),
    Sketcher.Constraint("Coincident", 2, 2, 3, 1),
    Sketcher.Constraint("Coincident", 3, 2, 0, 1),
    Sketcher.Constraint("Coincident", 5, 2, 6, 1),
    Sketcher.Constraint("Coincident", 6, 2, 7, 1),
    Sketcher.Constraint("Coincident", 7, 2, 8, 1),
    Sketcher.Constraint("Coincident", 8, 2, 9, 1),
    Sketcher.Constraint("Coincident", 9, 2, 10, 1),
    Sketcher.Constraint("Coincident", 10, 2, 11, 1),
    Sketcher.Constraint("Coincident", 11, 2, 12, 1),
    Sketcher.Constraint("Coincident", 12, 2, 5, 1),
    Sketcher.Constraint("Vertical", 0),
    Sketcher.Constraint("Horizontal", 1),
    Sketcher.Constraint("Vertical", 2),
    Sketcher.Constraint("Horizontal", 3),
    Sketcher.Constraint("Vertical", 5),
    Sketcher.Constraint("Horizontal", 6),
    Sketcher.Constraint("Vertical", 7),
    Sketcher.Constraint("Horizontal", 8),
    Sketcher.Constraint("Vertical", 9),
    Sketcher.Constraint("Horizontal", 10),
    Sketcher.Constraint("Vertical", 11),
    Sketcher.Constraint("Horizontal", 12),
    Sketcher.Constraint("Equal", 4, 13),
    Sketcher.Constraint("Horizontal", 4, 3, 13, 3),
    Sketcher.Constraint("Vertical", 7, 2, 10, 2),
    Sketcher.Constraint("Equal", 7, 11),
    Sketcher.Constraint("Diameter", 4, Q("2 mm")),
    Sketcher.Constraint("DistanceX", 6, 2, 6, 1, Q("24 mm")),
    Sketcher.Constraint("DistanceX", 8, 2, 8, 1, Q("1 mm")),
    Sketcher.Constraint("DistanceY", 5, 1, 5, 2, Q("14 mm")),
    Sketcher.Constraint("DistanceY", 7, 2, 7, 1, Q("4 mm")),
    Sketcher.Constraint("DistanceX", 13, 3, 4, 3, Q("30 mm")),
    Sketcher.Constraint("DistanceX", 5, 2, 4, 3, Q("3 mm")),
    Sketcher.Constraint("DistanceY", 4, 3, 5, 2, Q("7 mm")),
    Sketcher.Constraint("DistanceY", 0, 2, 0, 1, Q("66.44398 mm")),
    Sketcher.Constraint("DistanceY", 2, 2, -1, 1, Q("7.2925 mm")),
    Sketcher.Constraint("DistanceX", 4, 3, 0, 2, Q("15.466901 mm")),
    Sketcher.Constraint("DistanceX", 1, 2, 13, 3, Q("23.466901 mm")),
    Sketcher.Constraint("DistanceY", 4, 3, -1, 1, Q("40.51449 mm")),
    Sketcher.Constraint("DistanceX", 4, 3, -1, 1, Q("7.130604 mm")),
])
sketch15.setExpression("Constraints[28]", "Params.sketch15_diameter")
sketch15.setExpression("Constraints[29]", "Params.sketch15_width")
sketch15.setExpression("Constraints[30]", "Params.sketch15_width2")
sketch15.setExpression("Constraints[31]", "Params.sketch15_height")
sketch15.setExpression("Constraints[32]", "Params.sketch15_height2")
pad15 = body11.newObject("PartDesign::Pad", "Pad014")
pad15.Profile = sketch15
pad15.setExpression("Length", "Params.pad15_length")
pad15.Reversed = True

doc.recompute()
